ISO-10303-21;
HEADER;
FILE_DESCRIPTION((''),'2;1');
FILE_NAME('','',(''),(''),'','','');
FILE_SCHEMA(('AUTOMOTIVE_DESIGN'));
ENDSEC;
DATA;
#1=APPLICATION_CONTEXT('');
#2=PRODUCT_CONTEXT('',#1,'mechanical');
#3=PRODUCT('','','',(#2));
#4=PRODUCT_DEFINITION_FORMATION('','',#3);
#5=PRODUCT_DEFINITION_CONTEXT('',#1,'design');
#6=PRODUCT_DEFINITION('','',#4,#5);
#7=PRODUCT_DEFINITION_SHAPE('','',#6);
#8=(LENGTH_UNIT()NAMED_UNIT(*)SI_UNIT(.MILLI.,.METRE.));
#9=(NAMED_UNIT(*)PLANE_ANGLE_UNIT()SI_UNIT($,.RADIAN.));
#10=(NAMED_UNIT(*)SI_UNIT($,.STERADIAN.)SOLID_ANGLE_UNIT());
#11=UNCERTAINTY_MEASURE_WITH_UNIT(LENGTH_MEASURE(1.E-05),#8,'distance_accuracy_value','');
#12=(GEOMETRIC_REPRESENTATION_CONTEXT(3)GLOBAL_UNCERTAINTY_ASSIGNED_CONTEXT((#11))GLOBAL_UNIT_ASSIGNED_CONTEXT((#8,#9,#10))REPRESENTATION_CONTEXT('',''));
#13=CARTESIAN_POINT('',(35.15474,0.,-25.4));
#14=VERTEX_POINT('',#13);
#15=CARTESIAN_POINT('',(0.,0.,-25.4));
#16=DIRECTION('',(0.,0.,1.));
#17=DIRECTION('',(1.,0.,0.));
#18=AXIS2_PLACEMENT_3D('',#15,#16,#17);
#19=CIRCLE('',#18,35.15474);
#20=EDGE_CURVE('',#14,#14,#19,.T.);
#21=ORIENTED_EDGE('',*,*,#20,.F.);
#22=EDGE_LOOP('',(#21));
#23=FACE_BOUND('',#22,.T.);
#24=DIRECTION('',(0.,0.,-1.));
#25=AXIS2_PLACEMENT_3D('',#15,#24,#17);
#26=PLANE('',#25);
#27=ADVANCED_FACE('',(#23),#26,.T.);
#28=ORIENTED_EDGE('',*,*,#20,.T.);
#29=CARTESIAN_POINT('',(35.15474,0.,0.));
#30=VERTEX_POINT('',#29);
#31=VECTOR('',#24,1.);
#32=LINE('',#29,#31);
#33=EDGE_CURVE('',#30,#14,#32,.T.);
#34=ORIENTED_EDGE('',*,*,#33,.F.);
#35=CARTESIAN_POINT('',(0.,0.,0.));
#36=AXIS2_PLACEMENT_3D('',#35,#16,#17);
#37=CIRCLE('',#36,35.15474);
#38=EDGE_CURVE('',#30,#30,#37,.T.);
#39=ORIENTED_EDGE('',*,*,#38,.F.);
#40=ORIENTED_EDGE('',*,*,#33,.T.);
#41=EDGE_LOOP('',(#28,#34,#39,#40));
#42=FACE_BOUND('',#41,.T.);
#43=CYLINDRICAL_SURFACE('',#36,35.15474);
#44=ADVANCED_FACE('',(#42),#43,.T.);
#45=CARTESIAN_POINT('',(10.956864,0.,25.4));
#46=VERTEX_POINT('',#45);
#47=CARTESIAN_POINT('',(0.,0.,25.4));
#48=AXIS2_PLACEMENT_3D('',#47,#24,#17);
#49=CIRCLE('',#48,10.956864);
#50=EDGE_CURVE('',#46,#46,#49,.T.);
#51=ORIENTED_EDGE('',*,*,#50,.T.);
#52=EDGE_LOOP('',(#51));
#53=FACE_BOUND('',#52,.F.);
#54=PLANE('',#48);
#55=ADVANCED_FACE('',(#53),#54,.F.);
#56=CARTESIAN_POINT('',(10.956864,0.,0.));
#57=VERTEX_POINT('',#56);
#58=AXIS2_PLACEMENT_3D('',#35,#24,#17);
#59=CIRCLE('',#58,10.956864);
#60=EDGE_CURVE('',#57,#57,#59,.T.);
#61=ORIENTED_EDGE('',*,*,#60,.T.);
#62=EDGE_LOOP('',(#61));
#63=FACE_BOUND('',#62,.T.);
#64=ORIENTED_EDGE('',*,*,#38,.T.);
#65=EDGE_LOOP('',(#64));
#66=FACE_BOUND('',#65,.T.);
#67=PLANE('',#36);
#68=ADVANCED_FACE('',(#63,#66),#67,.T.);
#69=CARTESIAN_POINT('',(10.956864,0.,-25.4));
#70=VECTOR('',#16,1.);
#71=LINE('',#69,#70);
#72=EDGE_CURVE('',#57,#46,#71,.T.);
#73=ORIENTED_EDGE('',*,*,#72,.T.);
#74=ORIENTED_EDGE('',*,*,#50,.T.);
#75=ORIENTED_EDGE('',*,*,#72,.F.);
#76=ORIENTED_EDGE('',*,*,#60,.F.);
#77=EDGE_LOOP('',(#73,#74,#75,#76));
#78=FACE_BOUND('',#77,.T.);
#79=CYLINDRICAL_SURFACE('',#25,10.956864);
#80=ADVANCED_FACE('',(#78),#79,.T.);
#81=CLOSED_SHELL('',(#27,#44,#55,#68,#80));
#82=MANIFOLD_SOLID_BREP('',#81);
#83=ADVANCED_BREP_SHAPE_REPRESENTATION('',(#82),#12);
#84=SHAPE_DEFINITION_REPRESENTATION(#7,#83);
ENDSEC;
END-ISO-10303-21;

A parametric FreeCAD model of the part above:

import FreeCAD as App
import Part
import Sketcher

V = App.Vector
Q = App.Units.Quantity

doc = App.newDocument("Part")
body = doc.addObject("PartDesign::Body", "Body")

# Sketch on XY plane
sketch1 = body.newObject("Sketcher::SketchObject", "Sketch")
sketch1.AttachmentSupport = (doc.getObject("XY_Plane"), [""])
sketch1.MapMode = "FlatFace"
sketch1.addGeometry(Part.Circle(V(0, 0, 0), V(0, 0, 1), 35), False)
sketch1.addConstraint([
    Sketcher.Constraint("Coincident", 0, 3, -1, 1),
    Sketcher.Constraint("Diameter", 0, 70.30948),
])
pad1 = body.newObject("PartDesign::Pad", "Pad")
pad1.Profile = sketch1
pad1.Length = Q("1 in")
pad1.Reversed = True

# Sketch on XY plane
sketch2 = body.newObject("Sketcher::SketchObject", "Sketch001")
sketch2.AttachmentSupport = (doc.getObject("XY_Plane"), [""])
sketch2.MapMode = "FlatFace"
sketch2.AttachmentOffset = App.Placement(V(0, 0, -1 * 25.4), App.Rotation())
sketch2.addGeometry(Part.Circle(V(0, 0, 0), V(0, 0, 1), 11), False)
sketch2.addConstraint([
    Sketcher.Constraint("Coincident", 0, 3, -1, 1),
    Sketcher.Constraint("Diameter", 0, 21.913728),
])
pad2 = body.newObject("PartDesign::Pad", "Pad001")
pad2.Profile = sketch2
pad2.Length = Q("2 in")

doc.recompute()
